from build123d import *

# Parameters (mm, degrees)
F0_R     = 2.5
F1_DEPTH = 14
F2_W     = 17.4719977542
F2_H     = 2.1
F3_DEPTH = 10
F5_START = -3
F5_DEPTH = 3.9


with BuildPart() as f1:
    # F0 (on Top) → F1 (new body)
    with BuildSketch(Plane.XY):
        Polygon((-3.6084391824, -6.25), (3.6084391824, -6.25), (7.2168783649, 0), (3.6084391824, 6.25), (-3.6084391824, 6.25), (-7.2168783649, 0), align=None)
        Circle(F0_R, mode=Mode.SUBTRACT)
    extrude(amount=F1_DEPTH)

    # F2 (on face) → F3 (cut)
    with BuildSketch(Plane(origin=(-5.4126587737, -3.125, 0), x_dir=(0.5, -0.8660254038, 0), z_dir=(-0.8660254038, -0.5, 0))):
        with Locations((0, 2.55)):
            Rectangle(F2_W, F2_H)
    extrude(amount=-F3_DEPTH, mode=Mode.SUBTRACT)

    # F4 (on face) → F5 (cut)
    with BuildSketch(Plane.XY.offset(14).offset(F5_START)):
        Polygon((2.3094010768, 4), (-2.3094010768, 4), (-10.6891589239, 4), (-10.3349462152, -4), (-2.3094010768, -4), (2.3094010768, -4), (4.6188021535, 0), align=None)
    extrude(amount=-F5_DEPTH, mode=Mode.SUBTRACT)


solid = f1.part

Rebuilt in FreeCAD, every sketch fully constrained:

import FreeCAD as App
import Part
import Sketcher

V = App.Vector
Q = App.Units.Quantity

doc = App.newDocument("Part")
body = doc.addObject("PartDesign::Body", "Body")

sketch1 = body.newObject("Sketcher::SketchObject", "Sketch")
sketch1.AttachmentSupport = (doc.getObject("XY_Plane"), [""])
sketch1.MapMode = "FlatFace"
sketch1.addGeometry([
    Part.LineSegment(V(-3.6, -6.2, 0), V(3.6, -6.2, 0)),
    Part.LineSegment(V(3.6, -6.2, 0), V(7.2, 0, 0)),
    Part.LineSegment(V(7.2, 0, 0), V(3.6, 6.2, 0)),
    Part.LineSegment(V(3.6, 6.2, 0), V(-3.6, 6.2, 0)),
    Part.LineSegment(V(-3.6, 6.2, 0), V(-7.2, 0, 0)),
    Part.LineSegment(V(-7.2, 0, 0), V(-3.6, -6.2, 0)),
    Part.Circle(V(0, 0, 0), V(0, 0, 1), 2.5),
], False)
sketch1.addConstraint([
    Sketcher.Constraint("Coincident", 0, 2, 1, 1),
    Sketcher.Constraint("Coincident", 1, 2, 2, 1),
    Sketcher.Constraint("Coincident", 2, 2, 3, 1),
    Sketcher.Constraint("Coincident", 3, 2, 4, 1),
    Sketcher.Constraint("Coincident", 4, 2, 5, 1),
    Sketcher.Constraint("Coincident", 5, 2, 0, 1),
    Sketcher.Constraint("Horizontal", 0),
    Sketcher.Constraint("Horizontal", 3),
    Sketcher.Constraint("Coincident", 6, 3, -1, 1),
    Sketcher.Constraint("Symmetric", 0, 2, 3, 2, -1, 1),
    Sketcher.Constraint("Symmetric", 1, 2, 4, 2, -1, 1),
    Sketcher.Constraint("PointOnObject", 1, 2, -1),
    Sketcher.Constraint("Parallel", 2, 5),
    Sketcher.Constraint("Vertical", 0, 2, 2, 2),
    Sketcher.Constraint("Diameter", 6, 5.0),
    Sketcher.Constraint("Angle", 1, Q("60 deg")),
    Sketcher.Constraint("DistanceY", 0, 2, 2, 2, 12.5),
    Sketcher.Constraint("DistanceX", 0, 1, 0, 2, 7.216878),
])
pad1 = body.newObject("PartDesign::Pad", "Pad")
pad1.Profile = sketch1
pad1.Length = 14

sketch2 = body.newObject("Sketcher::SketchObject", "Sketch001")
sketch2.Placement = App.Placement(V(-5.412659, -3.125, 0), App.Rotation(V(0.5, -0.866025404, 0), V(0, 0, 1), V(-0.866025404, -0.5, 0), "ZXY"))
sketch2.addGeometry([
    Part.LineSegment(V(-8.7, 3.6, 0), V(-8.7, 1.5, 0)),
    Part.LineSegment(V(-8.7, 1.5, 0), V(8.7, 1.5, 0)),
    Part.LineSegment(V(8.7, 1.5, 0), V(8.7, 3.6, 0)),
    Part.LineSegment(V(8.7, 3.6, 0), V(-8.7, 3.6, 0)),
], False)
sketch2.addConstraint([
    Sketcher.Constraint("Coincident", 0, 2, 1, 1),
    Sketcher.Constraint("Coincident", 1, 2, 2, 1),
    Sketcher.Constraint("Coincident", 2, 2, 3, 1),
    Sketcher.Constraint("Coincident", 3, 2, 0, 1),
    Sketcher.Constraint("Vertical", 0),
    Sketcher.Constraint("Horizontal", 1),
    Sketcher.Constraint("Vertical", 2),
    Sketcher.Constraint("Horizontal", 3),
    Sketcher.Constraint("DistanceY", 0, 2, 0, 1, 2.1),
    Sketcher.Constraint("DistanceY", -1, 1, 0, 2, 1.5),
    Sketcher.Constraint("DistanceX", 0, 2, -1, 1, 8.735999),
    Sketcher.Constraint("DistanceX", -1, 1, 1, 2, 8.735999),
])
pocket1 = body.newObject("PartDesign::Pocket", "Pocket")
pocket1.Profile = sketch2
pocket1.Length = 10

sketch3 = body.newObject("Sketcher::SketchObject", "Sketch002")
sketch3.AttachmentSupport = (doc.getObject("XY_Plane"), [""])
sketch3.MapMode = "FlatFace"
sketch3.AttachmentOffset = App.Placement(V(0, 0, 11), App.Rotation())
sketch3.addGeometry([
    Part.LineSegment(V(2.3, 4, 0), V(-10.7, 4, 0)),
    Part.LineSegment(V(-10.7, 4, 0), V(-10.3, -4, 0)),
    Part.LineSegment(V(-10.3, -4, 0), V(2.3, -4, 0)),
    Part.LineSegment(V(2.3, -4, 0), V(4.6, 0, 0)),
    Part.LineSegment(V(4.6, 0, 0), V(2.3, 4, 0)),
], False)
sketch3.addConstraint([
    Sketcher.Constraint("Coincident", 0, 2, 1, 1),
    Sketcher.Constraint("Coincident", 1, 2, 2, 1),
    Sketcher.Constraint("Coincident", 2, 2, 3, 1),
    Sketcher.Constraint("Coincident", 3, 2, 4, 1),
    Sketcher.Constraint("Coincident", 4, 2, 0, 1),
    Sketcher.Constraint("Horizontal", 0),
    Sketcher.Constraint("Horizontal", 2),
    Sketcher.Constraint("Symmetric", 2, 2, 4, 2, -1),
    Sketcher.Constraint("PointOnObject", 3, 2, -1),
    Sketcher.Constraint("Angle", 3, Q("60 deg")),
    Sketcher.Constraint("DistanceY", -1, 1, 0, 2, 4.0),
    Sketcher.Constraint("DistanceX", 0, 2, 0, 1, 12.99856),
    Sketcher.Constraint("DistanceX", -1, 1, 2, 2, 2.309401),
    Sketcher.Constraint("DistanceX", 2, 1, 2, 2, 12.644347),
])
pocket2 = body.newObject("PartDesign::Pocket", "Pocket001")
pocket2.Profile = sketch3
pocket2.Length = 3.9

doc.recompute()
